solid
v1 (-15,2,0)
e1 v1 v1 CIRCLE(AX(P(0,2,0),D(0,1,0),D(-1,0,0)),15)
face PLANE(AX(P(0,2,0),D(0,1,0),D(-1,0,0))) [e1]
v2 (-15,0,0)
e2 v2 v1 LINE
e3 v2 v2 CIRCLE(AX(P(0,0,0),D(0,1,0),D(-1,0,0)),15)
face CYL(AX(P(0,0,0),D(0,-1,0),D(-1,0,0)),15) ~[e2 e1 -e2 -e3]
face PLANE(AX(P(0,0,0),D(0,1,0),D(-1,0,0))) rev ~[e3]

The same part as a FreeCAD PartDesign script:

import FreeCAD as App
import Part
import Sketcher
from FreeCAD import Vector

doc = App.newDocument("Part")
params = doc.addObject("Spreadsheet::Sheet", "Params")
for row, (alias, value) in enumerate([
    ("sketch1_diameter", "30 mm"),
    ("pad1_length", "2 mm"),
], start=1):
    params.set(f"A{row}", alias)
    params.set(f"B{row}", "=" + value)
    params.setAlias(f"B{row}", alias)

body = doc.addObject("PartDesign::Body", "Body")

sketch1 = body.newObject("Sketcher::SketchObject", "Sketch")
sketch1.AttachmentSupport = (doc.getObject("XZ_Plane"), [""])
sketch1.MapMode = "FlatFace"
sketch1.addGeometry(Part.Circle(Vector(0, 0, 0), Vector(0, 0, 1), 15), False)
sketch1.addConstraint(Sketcher.Constraint("Coincident", 0, 3, -1, 1))
sketch1.addConstraint(Sketcher.Constraint("Diameter", 0, 30.0))
sketch1.setExpression("Constraints[1]", "Params.sketch1_diameter")
pad1 = body.newObject("PartDesign::Pad", "Pad")
pad1.Profile = sketch1
pad1.setExpression("Length", "Params.pad1_length")
pad1.Reversed = True

doc.recompute()
